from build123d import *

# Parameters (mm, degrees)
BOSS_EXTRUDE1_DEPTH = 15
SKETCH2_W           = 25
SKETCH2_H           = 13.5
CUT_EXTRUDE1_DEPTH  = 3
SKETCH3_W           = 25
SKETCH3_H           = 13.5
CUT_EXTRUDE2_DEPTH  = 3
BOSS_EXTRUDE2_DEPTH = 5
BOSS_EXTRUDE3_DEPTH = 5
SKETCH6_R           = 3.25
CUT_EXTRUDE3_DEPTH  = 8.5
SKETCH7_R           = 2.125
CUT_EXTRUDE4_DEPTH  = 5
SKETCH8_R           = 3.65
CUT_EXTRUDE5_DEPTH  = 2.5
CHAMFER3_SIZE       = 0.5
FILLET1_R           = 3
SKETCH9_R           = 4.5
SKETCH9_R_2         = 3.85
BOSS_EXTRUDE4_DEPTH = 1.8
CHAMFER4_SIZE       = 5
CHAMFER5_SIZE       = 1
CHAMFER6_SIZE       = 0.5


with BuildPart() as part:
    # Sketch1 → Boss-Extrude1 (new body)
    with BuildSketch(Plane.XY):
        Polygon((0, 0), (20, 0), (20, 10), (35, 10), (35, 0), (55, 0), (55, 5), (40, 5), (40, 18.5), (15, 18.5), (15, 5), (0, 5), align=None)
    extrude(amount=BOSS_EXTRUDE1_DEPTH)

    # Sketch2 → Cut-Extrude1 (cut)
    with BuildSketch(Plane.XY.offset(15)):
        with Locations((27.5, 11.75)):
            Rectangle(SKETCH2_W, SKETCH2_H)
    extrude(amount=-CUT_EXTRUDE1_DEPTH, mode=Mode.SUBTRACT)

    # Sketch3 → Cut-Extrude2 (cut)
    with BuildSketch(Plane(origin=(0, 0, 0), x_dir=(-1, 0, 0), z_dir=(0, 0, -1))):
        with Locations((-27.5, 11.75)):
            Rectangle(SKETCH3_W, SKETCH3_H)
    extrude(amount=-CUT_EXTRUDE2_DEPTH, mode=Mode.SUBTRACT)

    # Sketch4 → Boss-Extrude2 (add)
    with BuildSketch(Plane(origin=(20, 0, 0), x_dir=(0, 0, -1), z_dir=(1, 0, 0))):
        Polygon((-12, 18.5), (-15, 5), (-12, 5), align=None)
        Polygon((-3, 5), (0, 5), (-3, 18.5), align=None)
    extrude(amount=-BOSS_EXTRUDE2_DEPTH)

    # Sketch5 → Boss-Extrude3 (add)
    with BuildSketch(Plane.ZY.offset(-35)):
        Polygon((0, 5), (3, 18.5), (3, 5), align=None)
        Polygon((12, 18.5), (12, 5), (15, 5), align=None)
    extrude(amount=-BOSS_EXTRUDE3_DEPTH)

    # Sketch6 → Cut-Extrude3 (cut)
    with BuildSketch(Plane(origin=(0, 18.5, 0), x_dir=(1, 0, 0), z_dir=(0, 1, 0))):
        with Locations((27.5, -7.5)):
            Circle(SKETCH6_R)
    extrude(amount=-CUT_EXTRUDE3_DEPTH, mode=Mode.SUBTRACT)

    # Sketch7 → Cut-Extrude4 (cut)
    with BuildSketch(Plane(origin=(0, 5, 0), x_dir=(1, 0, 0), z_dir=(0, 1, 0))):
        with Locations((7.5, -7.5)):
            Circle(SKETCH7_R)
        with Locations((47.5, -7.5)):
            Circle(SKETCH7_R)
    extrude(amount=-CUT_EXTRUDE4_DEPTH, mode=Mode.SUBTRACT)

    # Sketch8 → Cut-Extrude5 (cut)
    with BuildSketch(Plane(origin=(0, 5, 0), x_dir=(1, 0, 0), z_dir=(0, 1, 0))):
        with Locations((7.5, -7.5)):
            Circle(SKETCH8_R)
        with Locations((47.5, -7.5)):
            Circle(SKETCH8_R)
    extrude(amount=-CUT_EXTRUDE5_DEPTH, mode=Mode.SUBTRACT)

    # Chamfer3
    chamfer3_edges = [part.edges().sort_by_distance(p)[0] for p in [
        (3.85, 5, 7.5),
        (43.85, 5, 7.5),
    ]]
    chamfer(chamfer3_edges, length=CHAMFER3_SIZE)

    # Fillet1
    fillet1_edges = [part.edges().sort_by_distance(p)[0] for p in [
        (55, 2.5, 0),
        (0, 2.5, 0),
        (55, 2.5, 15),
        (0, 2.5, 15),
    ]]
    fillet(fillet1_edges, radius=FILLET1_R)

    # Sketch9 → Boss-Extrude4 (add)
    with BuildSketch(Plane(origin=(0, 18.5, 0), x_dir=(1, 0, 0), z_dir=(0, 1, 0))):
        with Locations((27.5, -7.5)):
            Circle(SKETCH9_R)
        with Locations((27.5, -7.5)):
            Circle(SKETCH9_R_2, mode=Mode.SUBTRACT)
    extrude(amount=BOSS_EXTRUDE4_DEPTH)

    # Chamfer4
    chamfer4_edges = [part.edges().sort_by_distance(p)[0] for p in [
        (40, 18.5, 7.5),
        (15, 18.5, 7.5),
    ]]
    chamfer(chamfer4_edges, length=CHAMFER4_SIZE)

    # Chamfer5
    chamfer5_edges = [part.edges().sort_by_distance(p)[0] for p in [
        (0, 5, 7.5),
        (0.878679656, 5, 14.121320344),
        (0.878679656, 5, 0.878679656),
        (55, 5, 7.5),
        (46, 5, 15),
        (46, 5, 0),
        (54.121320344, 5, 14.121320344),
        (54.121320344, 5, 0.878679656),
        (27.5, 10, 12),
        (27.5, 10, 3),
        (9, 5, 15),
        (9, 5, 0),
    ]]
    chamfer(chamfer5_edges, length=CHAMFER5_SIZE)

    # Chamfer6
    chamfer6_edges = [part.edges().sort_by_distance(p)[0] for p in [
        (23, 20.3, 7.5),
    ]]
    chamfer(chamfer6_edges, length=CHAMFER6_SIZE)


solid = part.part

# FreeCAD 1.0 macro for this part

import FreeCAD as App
import Part
import Sketcher


def edges_at(feature, points):
    """Names of the edges that pass closest to the given points."""
    edges = feature.Shape.Edges
    near = lambda p: min(range(len(edges)), key=lambda i: edges[i].distToShape(Part.Vertex(*p))[0])
    return sorted({f"Edge{near(p) + 1}" for p in points})

doc = App.newDocument("Part")
body = doc.addObject("PartDesign::Body", "Body")

# Sketch on XY plane
sketch1 = body.newObject("Sketcher::SketchObject", "Sketch")
sketch1.AttachmentSupport = (doc.getObject("XY_Plane"), [""])
sketch1.MapMode = "FlatFace"
sketch1.addGeometry([
    Part.LineSegment(App.Vector(0, 0, 0), App.Vector(20, 0, 0)),  # 0
    Part.LineSegment(App.Vector(20, 0, 0), App.Vector(20, 10, 0)),  # 1
    Part.LineSegment(App.Vector(20, 10, 0), App.Vector(35, 10, 0)),  # 2
    Part.LineSegment(App.Vector(35, 10, 0), App.Vector(35, 0, 0)),  # 3
    Part.LineSegment(App.Vector(35, 0, 0), App.Vector(55, 0, 0)),  # 4
    Part.LineSegment(App.Vector(55, 0, 0), App.Vector(55, 5, 0)),  # 5
    Part.LineSegment(App.Vector(55, 5, 0), App.Vector(40, 5, 0)),  # 6
    Part.LineSegment(App.Vector(40, 5, 0), App.Vector(40, 18, 0)),  # 7
    Part.LineSegment(App.Vector(40, 18, 0), App.Vector(15, 18, 0)),  # 8
    Part.LineSegment(App.Vector(15, 18, 0), App.Vector(15, 5, 0)),  # 9
    Part.LineSegment(App.Vector(15, 5, 0), App.Vector(0, 5, 0)),  # 10
    Part.LineSegment(App.Vector(0, 5, 0), App.Vector(0, 0, 0)),  # 11
], False)
sketch1.addConstraint([
    Sketcher.Constraint("Coincident", 0, 2, 1, 1),
    Sketcher.Constraint("Coincident", 1, 2, 2, 1),
    Sketcher.Constraint("Coincident", 2, 2, 3, 1),
    Sketcher.Constraint("Coincident", 3, 2, 4, 1),
    Sketcher.Constraint("Coincident", 4, 2, 5, 1),
    Sketcher.Constraint("Coincident", 5, 2, 6, 1),
    Sketcher.Constraint("Coincident", 6, 2, 7, 1),
    Sketcher.Constraint("Coincident", 7, 2, 8, 1),
    Sketcher.Constraint("Coincident", 8, 2, 9, 1),
    Sketcher.Constraint("Coincident", 9, 2, 10, 1),
    Sketcher.Constraint("Coincident", 10, 2, 11, 1),
    Sketcher.Constraint("Coincident", 11, 2, 0, 1),
    Sketcher.Constraint("Horizontal", 0),
    Sketcher.Constraint("Vertical", 1),
    Sketcher.Constraint("Horizontal", 2),
    Sketcher.Constraint("Vertical", 3),
    Sketcher.Constraint("Horizontal", 4),
    Sketcher.Constraint("Vertical", 5),
    Sketcher.Constraint("Horizontal", 6),
    Sketcher.Constraint("Vertical", 7),
    Sketcher.Constraint("Horizontal", 8),
    Sketcher.Constraint("Vertical", 9),
    Sketcher.Constraint("Horizontal", 10),
    Sketcher.Constraint("Vertical", 11),
    Sketcher.Constraint("Coincident", 11, 2, -1, 1),
    Sketcher.Constraint("PointOnObject", 3, 2, -1),
    Sketcher.Constraint("Horizontal", 6, 2, 9, 2),
    Sketcher.Constraint("Equal", 0, 4),
    Sketcher.Constraint("Equal", 2, 6),
    Sketcher.Constraint("Equal", 6, 10),
    Sketcher.Constraint("DistanceX", 0, 1, 0, 2, 20.0),
    Sketcher.Constraint("DistanceX", 2, 1, 2, 2, 15.0),
    Sketcher.Constraint("DistanceY", 1, 1, 1, 2, 10.0),
    Sketcher.Constraint("DistanceY", 5, 1, 5, 2, 5.0),
    Sketcher.Constraint("DistanceY", 7, 1, 7, 2, 13.5),
])
pad1 = body.newObject("PartDesign::Pad", "Pad")
pad1.Profile = sketch1
pad1.Length = 15

# Sketch on XY plane
sketch2 = body.newObject("Sketcher::SketchObject", "Sketch001")
sketch2.AttachmentSupport = (doc.getObject("XY_Plane"), [""])
sketch2.MapMode = "FlatFace"
sketch2.AttachmentOffset = App.Placement(App.Vector(0, 0, 15), App.Rotation())
sketch2.addGeometry([
    Part.LineSegment(App.Vector(15, 18, 0), App.Vector(15, 5, 0)),
    Part.LineSegment(App.Vector(15, 5, 0), App.Vector(40, 5, 0)),
    Part.LineSegment(App.Vector(40, 5, 0), App.Vector(40, 18, 0)),
    Part.LineSegment(App.Vector(40, 18, 0), App.Vector(15, 18, 0)),
], False)
sketch2.addConstraint([
    Sketcher.Constraint("Coincident", 0, 2, 1, 1),
    Sketcher.Constraint("Coincident", 1, 2, 2, 1),
    Sketcher.Constraint("Coincident", 2, 2, 3, 1),
    Sketcher.Constraint("Coincident", 3, 2, 0, 1),
    Sketcher.Constraint("Vertical", 0),
    Sketcher.Constraint("Horizontal", 1),
    Sketcher.Constraint("Vertical", 2),
    Sketcher.Constraint("Horizontal", 3),
    Sketcher.Constraint("DistanceX", 1, 1, 1, 2, 25.0),
    Sketcher.Constraint("DistanceY", 0, 2, 0, 1, 13.5),
    Sketcher.Constraint("DistanceX", -1, 1, 0, 2, 15.0),
    Sketcher.Constraint("DistanceY", -1, 1, 0, 2, 5.0),
])
pocket1 = body.newObject("PartDesign::Pocket", "Pocket")
pocket1.Profile = sketch2
pocket1.Length = 3

# Sketch on XY plane
sketch3 = body.newObject("Sketcher::SketchObject", "Sketch002")
sketch3.AttachmentSupport = (doc.getObject("XY_Plane"), [""])
sketch3.MapMode = "FlatFace"
sketch3.addGeometry([
    Part.LineSegment(App.Vector(40, 18, 0), App.Vector(40, 5, 0)),
    Part.LineSegment(App.Vector(40, 5, 0), App.Vector(15, 5, 0)),
    Part.LineSegment(App.Vector(15, 5, 0), App.Vector(15, 18, 0)),
    Part.LineSegment(App.Vector(15, 18, 0), App.Vector(40, 18, 0)),
], False)
sketch3.addConstraint([
    Sketcher.Constraint("Coincident", 0, 2, 1, 1),
    Sketcher.Constraint("Coincident", 1, 2, 2, 1),
    Sketcher.Constraint("Coincident", 2, 2, 3, 1),
    Sketcher.Constraint("Coincident", 3, 2, 0, 1),
    Sketcher.Constraint("Vertical", 0),
    Sketcher.Constraint("Horizontal", 1),
    Sketcher.Constraint("Vertical", 2),
    Sketcher.Constraint("Horizontal", 3),
    Sketcher.Constraint("DistanceX", 1, 2, 1, 1, 25.0),
    Sketcher.Constraint("DistanceY", 0, 2, 0, 1, 13.5),
    Sketcher.Constraint("DistanceX", -1, 1, 0, 2, 40.0),
    Sketcher.Constraint("DistanceY", -1, 1, 0, 2, 5.0),
])
pocket2 = body.newObject("PartDesign::Pocket", "Pocket001")
pocket2.Profile = sketch3
pocket2.Length = 3
pocket2.Reversed = True

# Sketch on YZ plane
sketch4 = body.newObject("Sketcher::SketchObject", "Sketch003")
sketch4.AttachmentSupport = (doc.getObject("YZ_Plane"), [""])
sketch4.MapMode = "FlatFace"
sketch4.AttachmentOffset = App.Placement(App.Vector(0, 0, 20), App.Rotation())
sketch4.addGeometry([
    Part.LineSegment(App.Vector(18.5, 12, 0), App.Vector(5, 15, 0)),  # 0
    Part.LineSegment(App.Vector(5, 15, 0), App.Vector(5, 12, 0)),  # 1
    Part.LineSegment(App.Vector(5, 12, 0), App.Vector(18.5, 12, 0)),  # 2
    Part.LineSegment(App.Vector(5, 3, 0), App.Vector(5, 0, 0)),  # 3
    Part.LineSegment(App.Vector(5, 0, 0), App.Vector(18.5, 3, 0)),  # 4
    Part.LineSegment(App.Vector(18.5, 3, 0), App.Vector(5, 3, 0)),  # 5
], False)
sketch4.addConstraint([
    Sketcher.Constraint("Coincident", 0, 2, 1, 1),
    Sketcher.Constraint("Coincident", 1, 2, 2, 1),
    Sketcher.Constraint("Coincident", 2, 2, 0, 1),
    Sketcher.Constraint("Coincident", 3, 2, 4, 1),
    Sketcher.Constraint("Coincident", 4, 2, 5, 1),
    Sketcher.Constraint("Coincident", 5, 2, 3, 1),
    Sketcher.Constraint("Vertical", 1),
    Sketcher.Constraint("Horizontal", 2),
    Sketcher.Constraint("Vertical", 3),
    Sketcher.Constraint("Horizontal", 5),
    Sketcher.Constraint("PointOnObject", 3, 2, -1),
    Sketcher.Constraint("Vertical", 1, 2, 3, 2),
    Sketcher.Constraint("Vertical", 2, 2, 4, 2),
    Sketcher.Constraint("Equal", 1, 3),
    Sketcher.Constraint("DistanceY", 1, 2, 1, 1, 3.0),
    Sketcher.Constraint("DistanceX", 2, 1, 2, 2, 13.5),
    Sketcher.Constraint("DistanceX", -1, 1, 0, 2, 5.0),
    Sketcher.Constraint("DistanceY", -1, 1, 0, 2, 15.0),
])
pad2 = body.newObject("PartDesign::Pad", "Pad001")
pad2.Profile = sketch4
pad2.Length = 5
pad2.Reversed = True

# Sketch on YZ plane
sketch5 = body.newObject("Sketcher::SketchObject", "Sketch004")
sketch5.AttachmentSupport = (doc.getObject("YZ_Plane"), [""])
sketch5.MapMode = "FlatFace"
sketch5.AttachmentOffset = App.Placement(App.Vector(0, 0, 35), App.Rotation())
sketch5.addGeometry([
    Part.LineSegment(App.Vector(18.5, 3, 0), App.Vector(5, 0, 0)),  # 0
    Part.LineSegment(App.Vector(5, 0, 0), App.Vector(5, 3, 0)),  # 1
    Part.LineSegment(App.Vector(5, 3, 0), App.Vector(18.5, 3, 0)),  # 2
    Part.LineSegment(App.Vector(18.5, 12, 0), App.Vector(5, 12, 0)),  # 3
    Part.LineSegment(App.Vector(5, 12, 0), App.Vector(5, 15, 0)),  # 4
    Part.LineSegment(App.Vector(5, 15, 0), App.Vector(18.5, 12, 0)),  # 5
], False)
sketch5.addConstraint([
    Sketcher.Constraint("Coincident", 0, 2, 1, 1),
    Sketcher.Constraint("Coincident", 1, 2, 2, 1),
    Sketcher.Constraint("Coincident", 2, 2, 0, 1),
    Sketcher.Constraint("Coincident", 3, 2, 4, 1),
    Sketcher.Constraint("Coincident", 4, 2, 5, 1),
    Sketcher.Constraint("Coincident", 5, 2, 3, 1),
    Sketcher.Constraint("Vertical", 1),
    Sketcher.Constraint("Horizontal", 2),
    Sketcher.Constraint("Horizontal", 3),
    Sketcher.Constraint("Vertical", 4),
    Sketcher.Constraint("PointOnObject", 0, 2, -1),
    Sketcher.Constraint("Vertical", 1, 2, 3, 2),
    Sketcher.Constraint("Vertical", 2, 2, 5, 2),
    Sketcher.Constraint("Equal", 1, 4),
    Sketcher.Constraint("DistanceY", 1, 1, 1, 2, 3.0),
    Sketcher.Constraint("DistanceX", 2, 1, 2, 2, 13.5),
    Sketcher.Constraint("DistanceX", -1, 1, 0, 2, 5.0),
    Sketcher.Constraint("DistanceY", -1, 1, 3, 2, 12.0),
])
pad3 = body.newObject("PartDesign::Pad", "Pad002")
pad3.Profile = sketch5
pad3.Length = 5

# Sketch on XZ plane
sketch6 = body.newObject("Sketcher::SketchObject", "Sketch005")
sketch6.AttachmentSupport = (doc.getObject("XZ_Plane"), [""])
sketch6.MapMode = "FlatFace"
sketch6.AttachmentOffset = App.Placement(App.Vector(0, 0, -18.5), App.Rotation())
sketch6.addGeometry(Part.Circle(App.Vector(27.5, 7.5, 0), App.Vector(0, 0, 1), 3.2), False)
sketch6.addConstraint([
    Sketcher.Constraint("Diameter", 0, 6.5),
    Sketcher.Constraint("DistanceX", -1, 1, 0, 3, 27.5),
    Sketcher.Constraint("DistanceY", -1, 1, 0, 3, 7.5),
])
pocket3 = body.newObject("PartDesign::Pocket", "Pocket002")
pocket3.Profile = sketch6
pocket3.Length = 8.5
pocket3.Reversed = True

# Sketch on XZ plane
sketch7 = body.newObject("Sketcher::SketchObject", "Sketch006")
sketch7.AttachmentSupport = (doc.getObject("XZ_Plane"), [""])
sketch7.MapMode = "FlatFace"
sketch7.AttachmentOffset = App.Placement(App.Vector(0, 0, -5), App.Rotation())
sketch7.addGeometry([
    Part.Circle(App.Vector(7.5, 7.5, 0), App.Vector(0, 0, 1), 2.1),
    Part.Circle(App.Vector(47.5, 7.5, 0), App.Vector(0, 0, 1), 2.1),
], False)
sketch7.addConstraint([
    Sketcher.Constraint("Equal", 0, 1),
    Sketcher.Constraint("Horizontal", 0, 3, 1, 3),
    Sketcher.Constraint("Diameter", 0, 4.25),
    Sketcher.Constraint("DistanceX", 0, 3, 1, 3, 40.0),
    Sketcher.Constraint("DistanceX", -1, 1, 0, 3, 7.5),
    Sketcher.Constraint("DistanceY", -1, 1, 0, 3, 7.5),
])
pocket4 = body.newObject("PartDesign::Pocket", "Pocket003")
pocket4.Profile = sketch7
pocket4.Length = 5
pocket4.Reversed = True

# Sketch on XZ plane
sketch8 = body.newObject("Sketcher::SketchObject", "Sketch007")
sketch8.AttachmentSupport = (doc.getObject("XZ_Plane"), [""])
sketch8.MapMode = "FlatFace"
sketch8.AttachmentOffset = App.Placement(App.Vector(0, 0, -5), App.Rotation())
sketch8.addGeometry([
    Part.Circle(App.Vector(7.5, 7.5, 0), App.Vector(0, 0, 1), 3.6),
    Part.Circle(App.Vector(47.5, 7.5, 0), App.Vector(0, 0, 1), 3.6),
], False)
sketch8.addConstraint([
    Sketcher.Constraint("Equal", 0, 1),
    Sketcher.Constraint("Horizontal", 0, 3, 1, 3),
    Sketcher.Constraint("Diameter", 0, 7.3),
    Sketcher.Constraint("DistanceX", 0, 3, 1, 3, 40.0),
    Sketcher.Constraint("DistanceX", -1, 1, 0, 3, 7.5),
    Sketcher.Constraint("DistanceY", -1, 1, 0, 3, 7.5),
])
pocket5 = body.newObject("PartDesign::Pocket", "Pocket004")
pocket5.Profile = sketch8
pocket5.Length = 2.5
pocket5.Reversed = True
doc.recompute()

chamfer = body.newObject("PartDesign::Chamfer", "Chamfer")
chamfer.Base = (pocket5, edges_at(pocket5, [(3.85, 5, 7.5), (43.85, 5, 7.5)]))
chamfer.Size = 0.5
doc.recompute()

fillet = body.newObject("PartDesign::Fillet", "Fillet")
fillet.Base = (chamfer, edges_at(chamfer, [
    (55, 2.5, 0),
    (0, 2.5, 0),
    (55, 2.5, 15),
    (0, 2.5, 15),
]))
fillet.Radius = 3

# Sketch on XZ plane
sketch9 = body.newObject("Sketcher::SketchObject", "Sketch008")
sketch9.AttachmentSupport = (doc.getObject("XZ_Plane"), [""])
sketch9.MapMode = "FlatFace"
sketch9.AttachmentOffset = App.Placement(App.Vector(0, 0, -18.5), App.Rotation())
sketch9.addGeometry([
    Part.Circle(App.Vector(27.5, 7.5, 0), App.Vector(0, 0, 1), 4.5),
    Part.Circle(App.Vector(27.5, 7.5, 0), App.Vector(0, 0, 1), 3.9),
], False)
sketch9.addConstraint([
    Sketcher.Constraint("Coincident", 1, 3, 0, 3),
    Sketcher.Constraint("Diameter", 0, 9.0),
    Sketcher.Constraint("Diameter", 1, 7.7),
    Sketcher.Constraint("DistanceX", -1, 1, 0, 3, 27.5),
    Sketcher.Constraint("DistanceY", -1, 1, 0, 3, 7.5),
])
pad4 = body.newObject("PartDesign::Pad", "Pad003")
pad4.Profile = sketch9
pad4.Length = 1.8
pad4.Reversed = True
doc.recompute()

chamfer2 = body.newObject("PartDesign::Chamfer", "Chamfer001")
chamfer2.Base = (pad4, edges_at(pad4, [(40, 18.5, 7.5), (15, 18.5, 7.5)]))
chamfer2.Size = 5
doc.recompute()

chamfer3 = body.newObject("PartDesign::Chamfer", "Chamfer002")
chamfer3.Base = (chamfer2, edges_at(chamfer2, [
    (0, 5, 7.5),
    (0.879, 5, 14.121),
    (0.879, 5, 0.879),
    (55, 5, 7.5),
    (46, 5, 15),
    (46, 5, 0),
    (54.121, 5, 14.121),
    (54.121, 5, 0.879),
    (27.5, 10, 12),
    (27.5, 10, 3),
    (9, 5, 15),
    (9, 5, 0),
]))
chamfer3.Size = 1
doc.recompute()

chamfer4 = body.newObject("PartDesign::Chamfer", "Chamfer003")
chamfer4.Base = (chamfer3, edges_at(chamfer3, [(23, 20.3, 7.5)]))
chamfer4.Size = 0.5

doc.recompute()
